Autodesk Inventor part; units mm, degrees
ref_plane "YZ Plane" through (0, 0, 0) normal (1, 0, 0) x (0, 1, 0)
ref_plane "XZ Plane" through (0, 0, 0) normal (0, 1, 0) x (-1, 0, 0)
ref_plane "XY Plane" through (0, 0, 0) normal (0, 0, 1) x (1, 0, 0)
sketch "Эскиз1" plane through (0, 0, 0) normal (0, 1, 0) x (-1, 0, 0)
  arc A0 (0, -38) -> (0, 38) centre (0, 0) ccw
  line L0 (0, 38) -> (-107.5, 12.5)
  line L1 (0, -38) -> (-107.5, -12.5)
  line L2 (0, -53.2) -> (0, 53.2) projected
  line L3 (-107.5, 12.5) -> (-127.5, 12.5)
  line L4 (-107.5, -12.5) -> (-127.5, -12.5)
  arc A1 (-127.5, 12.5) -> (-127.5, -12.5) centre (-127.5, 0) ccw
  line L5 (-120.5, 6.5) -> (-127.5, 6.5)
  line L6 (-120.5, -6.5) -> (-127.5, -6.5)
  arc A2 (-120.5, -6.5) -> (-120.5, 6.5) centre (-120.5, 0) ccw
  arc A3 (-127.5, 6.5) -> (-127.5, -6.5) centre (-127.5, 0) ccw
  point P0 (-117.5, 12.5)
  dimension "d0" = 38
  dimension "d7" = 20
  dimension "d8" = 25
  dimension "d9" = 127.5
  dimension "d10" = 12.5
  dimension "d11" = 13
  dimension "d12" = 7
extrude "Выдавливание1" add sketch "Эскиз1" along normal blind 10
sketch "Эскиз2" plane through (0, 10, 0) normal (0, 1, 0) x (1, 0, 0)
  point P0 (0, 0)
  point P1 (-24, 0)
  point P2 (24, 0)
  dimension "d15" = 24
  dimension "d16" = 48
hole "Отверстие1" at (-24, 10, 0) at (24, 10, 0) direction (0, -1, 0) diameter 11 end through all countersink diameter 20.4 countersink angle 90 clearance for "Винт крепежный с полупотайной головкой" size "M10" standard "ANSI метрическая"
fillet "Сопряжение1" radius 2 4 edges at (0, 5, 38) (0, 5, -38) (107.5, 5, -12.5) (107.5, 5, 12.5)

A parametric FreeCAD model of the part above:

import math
import FreeCAD as App
import Part
import Sketcher
from FreeCAD import Vector
Q = App.Units.Quantity


def edges_at(feature, points):
    """Names of the edges that pass closest to the given points."""
    edges = feature.Shape.Edges
    near = lambda p: min(range(len(edges)), key=lambda i: edges[i].distToShape(Part.Vertex(*p))[0])
    return sorted({f"Edge{near(p) + 1}" for p in points})

doc = App.newDocument("Part")
body = doc.addObject("PartDesign::Body", "Body")

# Sketch on XZ plane
sketch1 = body.newObject("Sketcher::SketchObject", "Sketch")
sketch1.AttachmentSupport = (doc.getObject("XZ_Plane"), [""])
sketch1.MapMode = "FlatFace"
sketch1.addGeometry([
    Part.ArcOfCircle(Part.Circle(Vector(0, 0, 0), Vector(0, 0, 1), 38), math.radians(90), math.radians(270)),  # 0
    Part.LineSegment(Vector(0, 38, 0), Vector(108, 12, 0)),  # 1
    Part.LineSegment(Vector(108, 12, 0), Vector(128, 12, 0)),  # 2
    Part.ArcOfCircle(Part.Circle(Vector(128, 0, 0), Vector(0, 0, 1), 12), math.radians(-90), math.radians(90)),  # 3
    Part.LineSegment(Vector(128, -12, 0), Vector(108, -12, 0)),  # 4
    Part.LineSegment(Vector(108, -12, 0), Vector(0, -38, 0)),  # 5
    Part.ArcOfCircle(Part.Circle(Vector(120, 0, 0), Vector(0, 0, 1), 6), math.radians(90), math.radians(270)),  # 6
    Part.LineSegment(Vector(120, -6, 0), Vector(128, -6, 0)),  # 7
    Part.ArcOfCircle(Part.Circle(Vector(128, 0, 0), Vector(0, 0, 1), 6), math.radians(-90), math.radians(90)),  # 8
    Part.LineSegment(Vector(128, 6, 0), Vector(120, 6, 0)),  # 9
], False)
sketch1.addConstraint([
    Sketcher.Constraint("Coincident", 0, 1, 1, 1),
    Sketcher.Constraint("Coincident", 1, 2, 2, 1),
    Sketcher.Constraint("Tangent", 2, 2, 3, 2),
    Sketcher.Constraint("Tangent", 3, 1, 4, 1),
    Sketcher.Constraint("Coincident", 4, 2, 5, 1),
    Sketcher.Constraint("Coincident", 5, 2, 0, 2),
    Sketcher.Constraint("Tangent", 6, 2, 7, 1),
    Sketcher.Constraint("Tangent", 7, 2, 8, 1),
    Sketcher.Constraint("Tangent", 8, 2, 9, 1),
    Sketcher.Constraint("Tangent", 9, 2, 6, 1),
    Sketcher.Constraint("Horizontal", 2),
    Sketcher.Constraint("Horizontal", 4),
    Sketcher.Constraint("Horizontal", 7),
    Sketcher.Constraint("Horizontal", 9),
    Sketcher.Constraint("Coincident", 0, 3, -1, 1),
    Sketcher.Constraint("Coincident", 8, 3, 3, 3),
    Sketcher.Constraint("Symmetric", 1, 2, 4, 2, -1),
    Sketcher.Constraint("PointOnObject", 0, 1, -2),
    Sketcher.Constraint("PointOnObject", 5, 2, -2),
    Sketcher.Constraint("Radius", 0, Q("38 mm")),
    Sketcher.Constraint("Radius", 3, Q("12.5 mm")),
    Sketcher.Constraint("Radius", 6, Q("6.5 mm")),
    Sketcher.Constraint("DistanceX", 2, 1, 2, 2, Q("20 mm")),
    Sketcher.Constraint("DistanceX", 7, 1, 7, 2, Q("7 mm")),
    Sketcher.Constraint("DistanceX", -1, 1, 3, 3, Q("127.5 mm")),
])
pad1 = body.newObject("PartDesign::Pad", "Pad")
pad1.Profile = sketch1
pad1.Length = 10
pad1.Reversed = True

# Sketch on XZ plane
sketch2 = body.newObject("Sketcher::SketchObject", "Sketch001")
sketch2.AttachmentSupport = (doc.getObject("XZ_Plane"), [""])
sketch2.MapMode = "FlatFace"
sketch2.AttachmentOffset = App.Placement(Vector(0, 0, -10), App.Rotation())
sketch2.addGeometry([
    Part.Circle(Vector(-24, 0, 0), Vector(0, 0, 1), 6),
    Part.Circle(Vector(24, 0, 0), Vector(0, 0, 1), 6),
], False)
sketch2.addConstraint([
    Sketcher.Constraint("Equal", 0, 1),
    Sketcher.Constraint("Symmetric", 0, 3, 1, 3, -1, 1),
    Sketcher.Constraint("PointOnObject", 0, 3, -1),
    Sketcher.Constraint("Diameter", 0, Q("11 mm")),
    Sketcher.Constraint("DistanceX", 0, 3, -1, 1, Q("24 mm")),
])
doc.recompute()
hole = body.newObject("PartDesign::Hole", "Hole")
hole.Profile = sketch2
hole.ThreadType = "None"
hole.Diameter = 11
hole.DepthType = "ThroughAll"
hole.HoleCutType = "Countersink"
hole.HoleCutDiameter = 20.4
hole.HoleCutCountersinkAngle = 90
hole.Reversed = True
doc.recompute()

fillet = body.newObject("PartDesign::Fillet", "Fillet")
fillet.Base = (hole, edges_at(hole, [
    (0, 5, 38),
    (0, 5, -38),
    (107.5, 5, -12.5),
    (107.5, 5, 12.5),
]))
fillet.Radius = 2

doc.recompute()
